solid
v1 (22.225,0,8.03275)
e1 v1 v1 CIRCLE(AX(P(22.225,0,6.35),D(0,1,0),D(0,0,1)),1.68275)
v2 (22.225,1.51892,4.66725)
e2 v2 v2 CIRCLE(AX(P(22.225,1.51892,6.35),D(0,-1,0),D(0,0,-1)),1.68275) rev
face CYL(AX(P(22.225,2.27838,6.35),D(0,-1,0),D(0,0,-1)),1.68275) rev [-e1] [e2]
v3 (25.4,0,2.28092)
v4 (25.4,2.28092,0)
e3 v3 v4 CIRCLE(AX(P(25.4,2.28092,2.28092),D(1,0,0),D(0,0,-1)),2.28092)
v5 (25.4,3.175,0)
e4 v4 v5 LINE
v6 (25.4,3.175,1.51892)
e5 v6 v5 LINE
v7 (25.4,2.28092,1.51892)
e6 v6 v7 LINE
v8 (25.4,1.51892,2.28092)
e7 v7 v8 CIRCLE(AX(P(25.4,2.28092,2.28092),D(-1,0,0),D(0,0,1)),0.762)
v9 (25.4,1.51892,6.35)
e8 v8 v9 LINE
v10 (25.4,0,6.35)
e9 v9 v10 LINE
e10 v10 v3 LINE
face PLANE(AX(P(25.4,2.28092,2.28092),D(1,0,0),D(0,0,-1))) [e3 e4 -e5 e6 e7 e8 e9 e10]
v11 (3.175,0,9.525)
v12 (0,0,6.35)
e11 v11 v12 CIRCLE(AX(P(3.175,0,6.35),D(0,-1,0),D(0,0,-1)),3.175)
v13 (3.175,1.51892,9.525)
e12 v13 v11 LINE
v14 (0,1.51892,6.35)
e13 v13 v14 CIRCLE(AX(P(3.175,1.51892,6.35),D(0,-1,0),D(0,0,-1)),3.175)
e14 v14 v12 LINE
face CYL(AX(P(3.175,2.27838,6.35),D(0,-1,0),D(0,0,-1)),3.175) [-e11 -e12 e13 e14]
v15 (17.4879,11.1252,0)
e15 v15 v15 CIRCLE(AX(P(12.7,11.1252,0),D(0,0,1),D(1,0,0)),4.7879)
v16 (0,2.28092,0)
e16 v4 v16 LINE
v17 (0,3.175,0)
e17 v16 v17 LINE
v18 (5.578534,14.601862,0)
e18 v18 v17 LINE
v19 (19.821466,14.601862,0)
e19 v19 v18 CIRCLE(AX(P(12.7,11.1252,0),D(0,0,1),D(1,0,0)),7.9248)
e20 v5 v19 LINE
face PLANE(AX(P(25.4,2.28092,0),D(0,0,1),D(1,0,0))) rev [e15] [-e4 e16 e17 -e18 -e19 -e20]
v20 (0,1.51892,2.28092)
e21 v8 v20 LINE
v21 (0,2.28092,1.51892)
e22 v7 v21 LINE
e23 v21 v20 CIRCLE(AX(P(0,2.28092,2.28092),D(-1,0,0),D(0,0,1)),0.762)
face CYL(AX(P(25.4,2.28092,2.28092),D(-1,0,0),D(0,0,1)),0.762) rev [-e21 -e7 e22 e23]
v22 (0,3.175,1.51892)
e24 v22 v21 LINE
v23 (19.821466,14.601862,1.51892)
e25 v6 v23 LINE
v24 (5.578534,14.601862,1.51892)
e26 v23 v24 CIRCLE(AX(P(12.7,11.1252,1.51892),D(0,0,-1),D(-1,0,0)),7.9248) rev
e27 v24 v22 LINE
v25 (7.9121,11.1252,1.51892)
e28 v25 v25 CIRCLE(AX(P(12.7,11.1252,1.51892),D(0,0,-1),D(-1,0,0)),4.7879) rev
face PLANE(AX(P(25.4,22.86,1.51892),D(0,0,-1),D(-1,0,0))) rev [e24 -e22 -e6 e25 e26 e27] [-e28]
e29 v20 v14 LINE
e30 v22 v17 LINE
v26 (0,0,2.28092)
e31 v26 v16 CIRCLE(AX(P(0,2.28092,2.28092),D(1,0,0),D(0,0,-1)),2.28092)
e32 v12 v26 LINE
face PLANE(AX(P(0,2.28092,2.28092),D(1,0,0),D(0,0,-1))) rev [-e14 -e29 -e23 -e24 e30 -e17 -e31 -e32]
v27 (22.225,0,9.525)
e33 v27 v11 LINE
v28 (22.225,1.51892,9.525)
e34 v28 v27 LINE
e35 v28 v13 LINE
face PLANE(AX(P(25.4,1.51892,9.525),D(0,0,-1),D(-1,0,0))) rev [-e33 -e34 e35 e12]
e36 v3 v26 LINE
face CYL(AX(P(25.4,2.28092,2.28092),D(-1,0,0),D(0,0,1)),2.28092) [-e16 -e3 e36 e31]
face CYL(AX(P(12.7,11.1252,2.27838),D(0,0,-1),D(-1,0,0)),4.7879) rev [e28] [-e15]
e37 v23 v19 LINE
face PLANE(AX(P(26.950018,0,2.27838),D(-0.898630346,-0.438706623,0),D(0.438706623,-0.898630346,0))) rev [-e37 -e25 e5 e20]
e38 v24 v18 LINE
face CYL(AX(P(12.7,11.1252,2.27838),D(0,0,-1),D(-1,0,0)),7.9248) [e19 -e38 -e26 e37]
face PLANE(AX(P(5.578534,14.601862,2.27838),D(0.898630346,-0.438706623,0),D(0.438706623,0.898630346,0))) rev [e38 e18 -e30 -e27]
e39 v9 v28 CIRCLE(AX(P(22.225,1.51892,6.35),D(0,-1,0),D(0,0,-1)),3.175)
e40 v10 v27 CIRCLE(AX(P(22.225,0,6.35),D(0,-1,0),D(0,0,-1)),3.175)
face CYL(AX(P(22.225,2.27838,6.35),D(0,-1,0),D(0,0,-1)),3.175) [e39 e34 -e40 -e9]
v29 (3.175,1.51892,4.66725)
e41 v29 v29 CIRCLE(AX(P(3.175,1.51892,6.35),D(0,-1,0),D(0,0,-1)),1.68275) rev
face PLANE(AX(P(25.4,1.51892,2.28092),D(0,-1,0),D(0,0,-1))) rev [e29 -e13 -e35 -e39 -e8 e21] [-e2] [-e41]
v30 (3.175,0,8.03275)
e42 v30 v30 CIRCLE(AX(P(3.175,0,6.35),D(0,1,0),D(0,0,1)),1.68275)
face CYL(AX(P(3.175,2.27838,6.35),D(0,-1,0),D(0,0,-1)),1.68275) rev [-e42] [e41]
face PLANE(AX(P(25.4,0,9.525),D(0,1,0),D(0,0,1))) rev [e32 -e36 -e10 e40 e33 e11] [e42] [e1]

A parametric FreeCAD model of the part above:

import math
import FreeCAD as App
import Part
import Sketcher

V = App.Vector
Q = App.Units.Quantity


def add_polygon(sketch, points):
    """Adds a closed chain of lines whose ends are joined by coincident constraints."""
    first, n = sketch.GeometryCount, len(points)
    for a, b in zip(points, points[1:] + points[:1]):
        sketch.addGeometry(Part.LineSegment(App.Vector(*a, 0), App.Vector(*b, 0)), False)
    for i in range(n):
        sketch.addConstraint(Sketcher.Constraint("Coincident", first + i, 2, first + (i + 1) % n, 1))

doc = App.newDocument("Part")
body = doc.addObject("PartDesign::Body", "Body")

sketch1 = body.newObject("Sketcher::SketchObject", "Sketch")
sketch1.AttachmentSupport = (doc.getObject("YZ_Plane"), [""])
sketch1.MapMode = "FlatFace"
sketch1.addGeometry([
    Part.LineSegment(V(1.5, 9.5, 0), V(0, 9.5, 0)),
    Part.LineSegment(V(0, 9.5, 0), V(0, 2.3, 0)),
    Part.ArcOfCircle(Part.Circle(V(2.3, 2.3, 0), V(0, 0, 1), 2.3), math.radians(-180), math.radians(-90)),
    Part.LineSegment(V(2.3, 0, 0), V(22.9, 0, 0)),
    Part.LineSegment(V(22.9, 0, 0), V(22.9, 1.5, 0)),
    Part.LineSegment(V(22.9, 1.5, 0), V(2.3, 1.5, 0)),
    Part.ArcOfCircle(Part.Circle(V(2.3, 2.3, 0), V(0, 0, 1), 0.8), math.radians(-180), math.radians(-90)),
    Part.LineSegment(V(1.5, 2.3, 0), V(1.5, 9.5, 0)),
], False)
sketch1.addConstraint([
    Sketcher.Constraint("Coincident", 0, 2, 1, 1),
    Sketcher.Constraint("Tangent", 1, 2, 2, 1),
    Sketcher.Constraint("Tangent", 2, 2, 3, 1),
    Sketcher.Constraint("Coincident", 3, 2, 4, 1),
    Sketcher.Constraint("Coincident", 4, 2, 5, 1),
    Sketcher.Constraint("Tangent", 5, 2, 6, 2),
    Sketcher.Constraint("Tangent", 6, 1, 7, 1),
    Sketcher.Constraint("Coincident", 7, 2, 0, 1),
    Sketcher.Constraint("Horizontal", 0),
    Sketcher.Constraint("Vertical", 1),
    Sketcher.Constraint("Horizontal", 3),
    Sketcher.Constraint("Vertical", 4),
    Sketcher.Constraint("Horizontal", 5),
    Sketcher.Constraint("Vertical", 7),
    Sketcher.Constraint("Coincident", 6, 3, 2, 3),
    Sketcher.Constraint("PointOnObject", 0, 2, -2),
    Sketcher.Constraint("PointOnObject", 2, 2, -1),
    Sketcher.Constraint("Radius", 6, Q("0.03 in")),
    Sketcher.Constraint("DistanceX", -1, 1, 3, 2, Q("0.9 in")),
    Sketcher.Constraint("Radius", 2, Q("0.0898 in")),
    Sketcher.Constraint("DistanceY", 1, 2, 1, 1, Q("0.2852 in")),
])
pad1 = body.newObject("PartDesign::Pad", "Pad")
pad1.Profile = sketch1
pad1.Length = Q("1 in")

sketch2 = body.newObject("Sketcher::SketchObject", "Sketch001")
sketch2.AttachmentSupport = (doc.getObject("XY_Plane"), [""])
sketch2.MapMode = "FlatFace"
add_polygon(sketch2, [(-5, 30), (-5, -2), (30, -2), (30, 30)])
sketch2.addGeometry(Part.LineSegment(V(27, 0, 0), V(-2, 0, 0)), False)
sketch2.addGeometry(Part.LineSegment(V(-2, 0, 0), V(6, 15, 0)), False)
sketch2.addGeometry(Part.ArcOfCircle(Part.Circle(V(13, 11, 0), V(0, 0, 1), 8), math.radians(26), math.radians(154)), False)
sketch2.addGeometry(Part.LineSegment(V(20, 15, 0), V(27, 0, 0)), False)
sketch2.addConstraint([
    Sketcher.Constraint("Coincident", 4, 2, 5, 1),
    Sketcher.Constraint("Tangent", 5, 2, 6, 2),
    Sketcher.Constraint("Tangent", 6, 1, 7, 1),
    Sketcher.Constraint("Coincident", 7, 2, 4, 1),
    Sketcher.Constraint("Vertical", 0),
    Sketcher.Constraint("Horizontal", 1),
    Sketcher.Constraint("Vertical", 2),
    Sketcher.Constraint("Horizontal", 3),
    Sketcher.Constraint("Horizontal", 4),
    Sketcher.Constraint("PointOnObject", 4, 2, -1),
    Sketcher.Constraint("Horizontal", 5, 2, 6, 1),
    Sketcher.Constraint("DistanceX", 1, 1, 1, 2, Q("1.4 in")),
    Sketcher.Constraint("Radius", 6, Q("0.312 in")),
    Sketcher.Constraint("DistanceX", -1, 1, 6, 3, Q("0.5 in")),
    Sketcher.Constraint("DistanceX", 0, 2, -1, 1, Q("0.2 in")),
    Sketcher.Constraint("DistanceY", -1, 1, 2, 2, Q("1.2 in")),
    Sketcher.Constraint("DistanceY", 0, 2, 0, 1, Q("1.275 in")),
    Sketcher.Constraint("DistanceY", -1, 1, 6, 3, Q("0.438 in")),
    Sketcher.Constraint("Distance", 5, 16.24902),
])
pocket1 = body.newObject("PartDesign::Pocket", "Pocket")
pocket1.Profile = sketch2
pocket1.Length = Q("0.0897 in")
pocket1.Reversed = True

sketch3 = body.newObject("Sketcher::SketchObject", "Sketch002")
sketch3.AttachmentSupport = (doc.getObject("XY_Plane"), [""])
sketch3.MapMode = "FlatFace"
sketch3.addGeometry(Part.Circle(V(12.7, 11.1, 0), V(0, 0, 1), 4.8), False)
sketch3.addConstraint([
    Sketcher.Constraint("Diameter", 0, Q("0.377 in")),
    Sketcher.Constraint("DistanceX", -1, 1, 0, 3, Q("0.5 in")),
    Sketcher.Constraint("DistanceY", -1, 1, 0, 3, Q("0.438 in")),
])
pocket2 = body.newObject("PartDesign::Pocket", "Pocket001")
pocket2.Profile = sketch3
pocket2.Length = Q("0.0897 in")
pocket2.Reversed = True

sketch4 = body.newObject("Sketcher::SketchObject", "Sketch003")
sketch4.AttachmentSupport = (doc.getObject("XZ_Plane"), [""])
sketch4.MapMode = "FlatFace"
sketch4.addGeometry(Part.Circle(V(3.2, 6.3, 0), V(0, 0, 1), 1.7), False)
sketch4.addConstraint([
    Sketcher.Constraint("Diameter", 0, Q("0.1325 in")),
    Sketcher.Constraint("DistanceY", -1, 1, 0, 3, Q("0.25 in")),
    Sketcher.Constraint("DistanceX", -1, 1, 0, 3, Q("0.125 in")),
])
pocket3 = body.newObject("PartDesign::Pocket", "Pocket002")
pocket3.Profile = sketch4
pocket3.Length = Q("0.0897 in")

sketch5 = body.newObject("Sketcher::SketchObject", "Sketch004")
sketch5.AttachmentSupport = (doc.getObject("XZ_Plane"), [""])
sketch5.MapMode = "FlatFace"
sketch5.addGeometry(Part.Circle(V(22.2, 6.3, 0), V(0, 0, 1), 1.7), False)
sketch5.addConstraint([
    Sketcher.Constraint("Diameter", 0, Q("0.1325 in")),
    Sketcher.Constraint("DistanceY", -1, 1, 0, 3, Q("0.25 in")),
    Sketcher.Constraint("DistanceX", -1, 1, 0, 3, Q("0.875 in")),
])
pocket4 = body.newObject("PartDesign::Pocket", "Pocket003")
pocket4.Profile = sketch5
pocket4.Length = Q("0.0897 in")

sketch6 = body.newObject("Sketcher::SketchObject", "Sketch005")
sketch6.AttachmentSupport = (doc.getObject("XZ_Plane"), [""])
sketch6.MapMode = "FlatFace"
sketch6.addGeometry([
    Part.LineSegment(V(-12.7, 12.7, 0), V(3.2, 12.7, 0)),
    Part.LineSegment(V(3.2, 12.7, 0), V(3.2, 9.5, 0)),
    Part.ArcOfCircle(Part.Circle(V(3.2, 6.3, 0), V(0, 0, 1), 3.2), math.radians(90), math.radians(180)),
    Part.LineSegment(V(0, 6.3, 0), V(-12.7, 6.3, 0)),
    Part.LineSegment(V(-12.7, 6.3, 0), V(-12.7, 12.7, 0)),
], False)
sketch6.addConstraint([
    Sketcher.Constraint("Coincident", 0, 2, 1, 1),
    Sketcher.Constraint("Coincident", 1, 2, 2, 1),
    Sketcher.Constraint("Coincident", 2, 2, 3, 1),
    Sketcher.Constraint("Coincident", 3, 2, 4, 1),
    Sketcher.Constraint("Coincident", 4, 2, 0, 1),
    Sketcher.Constraint("Horizontal", 0),
    Sketcher.Constraint("Vertical", 1),
    Sketcher.Constraint("Horizontal", 3),
    Sketcher.Constraint("Vertical", 4),
    Sketcher.Constraint("PointOnObject", 2, 2, -2),
    Sketcher.Constraint("Vertical", 2, 3, 0, 2),
    Sketcher.Constraint("DistanceX", 3, 2, 3, 1, Q("0.5 in")),
    Sketcher.Constraint("Radius", 2, Q("0.125 in")),
    Sketcher.Constraint("DistanceY", 4, 1, 4, 2, Q("0.25 in")),
    Sketcher.Constraint("DistanceY", -1, 1, 0, 2, Q("0.5 in")),
    Sketcher.Constraint("DistanceY", 1, 2, 1, 1, Q("0.125 in")),
])
pocket5 = body.newObject("PartDesign::Pocket", "Pocket004")
pocket5.Profile = sketch6
pocket5.Length = Q("0.0897 in")

sketch7 = body.newObject("Sketcher::SketchObject", "Sketch006")
sketch7.AttachmentSupport = (doc.getObject("XZ_Plane"), [""])
sketch7.MapMode = "FlatFace"
sketch7.addGeometry([
    Part.LineSegment(V(22.2, 9.5, 0), V(22.2, 12.7, 0)),
    Part.LineSegment(V(22.2, 12.7, 0), V(38.1, 12.7, 0)),
    Part.LineSegment(V(38.1, 12.7, 0), V(38.1, 6.3, 0)),
    Part.LineSegment(V(38.1, 6.3, 0), V(25.4, 6.3, 0)),
    Part.ArcOfCircle(Part.Circle(V(22.2, 6.3, 0), V(0, 0, 1), 3.2), math.radians(0), math.radians(90)),
], False)
sketch7.addConstraint([
    Sketcher.Constraint("Coincident", 0, 2, 1, 1),
    Sketcher.Constraint("Coincident", 1, 2, 2, 1),
    Sketcher.Constraint("Coincident", 2, 2, 3, 1),
    Sketcher.Constraint("Coincident", 3, 2, 4, 1),
    Sketcher.Constraint("Coincident", 4, 2, 0, 1),
    Sketcher.Constraint("Vertical", 0),
    Sketcher.Constraint("Horizontal", 1),
    Sketcher.Constraint("Vertical", 2),
    Sketcher.Constraint("Horizontal", 3),
    Sketcher.Constraint("Horizontal", 4, 3, 2, 2),
    Sketcher.Constraint("Vertical", 4, 3, 0, 2),
    Sketcher.Constraint("DistanceX", 3, 2, 3, 1, Q("0.5 in")),
    Sketcher.Constraint("DistanceX", -1, 1, 3, 2, Q("1 in")),
    Sketcher.Constraint("Radius", 4, Q("0.125 in")),
    Sketcher.Constraint("DistanceY", 2, 2, 2, 1, Q("0.25 in")),
    Sketcher.Constraint("DistanceY", -1, 1, 0, 2, Q("0.5 in")),
])
pocket6 = body.newObject("PartDesign::Pocket", "Pocket005")
pocket6.Profile = sketch7
pocket6.Length = Q("0.0897 in")

doc.recompute()
